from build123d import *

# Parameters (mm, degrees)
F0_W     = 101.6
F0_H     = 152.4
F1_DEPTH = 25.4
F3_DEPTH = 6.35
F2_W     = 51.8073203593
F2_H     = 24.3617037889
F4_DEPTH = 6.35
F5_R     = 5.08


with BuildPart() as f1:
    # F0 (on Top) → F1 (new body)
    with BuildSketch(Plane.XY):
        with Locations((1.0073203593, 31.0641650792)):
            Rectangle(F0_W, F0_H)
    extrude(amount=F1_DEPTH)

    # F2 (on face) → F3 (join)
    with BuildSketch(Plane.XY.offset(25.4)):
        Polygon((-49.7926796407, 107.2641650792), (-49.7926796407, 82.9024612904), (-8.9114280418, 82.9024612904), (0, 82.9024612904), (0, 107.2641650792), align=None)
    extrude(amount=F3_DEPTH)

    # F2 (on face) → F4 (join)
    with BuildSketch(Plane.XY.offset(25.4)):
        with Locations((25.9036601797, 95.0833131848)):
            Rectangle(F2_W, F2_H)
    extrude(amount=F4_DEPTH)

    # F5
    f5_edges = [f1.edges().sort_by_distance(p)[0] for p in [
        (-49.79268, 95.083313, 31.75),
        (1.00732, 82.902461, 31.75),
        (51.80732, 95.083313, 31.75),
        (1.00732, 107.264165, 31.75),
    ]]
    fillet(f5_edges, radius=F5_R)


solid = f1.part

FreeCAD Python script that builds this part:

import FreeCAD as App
import Part
import Sketcher

V = App.Vector
Q = App.Units.Quantity


def edges_at(feature, points):
    """Names of the edges that pass closest to the given points."""
    edges = feature.Shape.Edges
    near = lambda p: min(range(len(edges)), key=lambda i: edges[i].distToShape(Part.Vertex(*p))[0])
    return sorted({f"Edge{near(p) + 1}" for p in points})


def add_polygon(sketch, points):
    """Adds a closed chain of lines whose ends are joined by coincident constraints."""
    first, n = sketch.GeometryCount, len(points)
    for a, b in zip(points, points[1:] + points[:1]):
        sketch.addGeometry(Part.LineSegment(App.Vector(*a, 0), App.Vector(*b, 0)), False)
    for i in range(n):
        sketch.addConstraint(Sketcher.Constraint("Coincident", first + i, 2, first + (i + 1) % n, 1))

doc = App.newDocument("Part")
params = doc.addObject("Spreadsheet::Sheet", "Params")
for row, (alias, value) in enumerate([
    ("sketch1_width", "4 in"),
    ("sketch1_height", "6 in"),
    ("pad1_length", "1 in"),
    ("pad2_length", "0.25 in"),
    ("pad3_length", "0.25 in"),
    ("fillet_radius", "0.2 in"),
], start=1):
    params.set(f"A{row}", alias)
    params.set(f"B{row}", "=" + value)
    params.setAlias(f"B{row}", alias)

body = doc.addObject("PartDesign::Body", "Body")

# Sketch on XY plane
sketch1 = doc.addObject("Sketcher::SketchObject", "Sketch")
body.addObject(sketch1)
sketch1.AttachmentSupport = (doc.XY_Plane, [""])
sketch1.MapMode = "FlatFace"
add_polygon(sketch1, [(-50, 107), (-50, -45), (52, -45), (52, 107)])  # lines 0-3
sketch1.addConstraint(Sketcher.Constraint("Vertical", 0))
sketch1.addConstraint(Sketcher.Constraint("Horizontal", 1))
sketch1.addConstraint(Sketcher.Constraint("Vertical", 2))
sketch1.addConstraint(Sketcher.Constraint("Horizontal", 3))
sketch1.addConstraint(Sketcher.Constraint("DistanceX", 1, 1, 1, 2, Q("4 in")))
sketch1.addConstraint(Sketcher.Constraint("DistanceY", 0, 2, 0, 1, Q("6 in")))
sketch1.addConstraint(Sketcher.Constraint("DistanceX", 0, 2, -1, 1, Q("49.79268 mm")))
sketch1.addConstraint(Sketcher.Constraint("DistanceY", 0, 2, -1, 1, Q("45.135835 mm")))
sketch1.setExpression("Constraints[8]", "Params.sketch1_width")
sketch1.setExpression("Constraints[9]", "Params.sketch1_height")
pad1 = doc.addObject("PartDesign::Pad", "Pad")
body.addObject(pad1)
pad1.Profile = sketch1
pad1.setExpression("Length", "Params.pad1_length")

# Sketch on XY plane
sketch2 = doc.addObject("Sketcher::SketchObject", "Sketch001")
body.addObject(sketch2)
sketch2.AttachmentSupport = (doc.XY_Plane, [""])
sketch2.MapMode = "FlatFace"
sketch2.AttachmentOffset = App.Placement(V(0, 0, 1 * 25.4), App.Rotation())
add_polygon(sketch2, [(-50, 107), (-50, 83), (0, 83), (0, 107)])  # lines 0-3
sketch2.addConstraint(Sketcher.Constraint("Vertical", 0))
sketch2.addConstraint(Sketcher.Constraint("Horizontal", 1))
sketch2.addConstraint(Sketcher.Constraint("Vertical", 2))
sketch2.addConstraint(Sketcher.Constraint("Horizontal", 3))
sketch2.addConstraint(Sketcher.Constraint("PointOnObject", 1, 2, -2))
sketch2.addConstraint(Sketcher.Constraint("DistanceX", 1, 1, 1, 2, Q("49.79268 mm")))
sketch2.addConstraint(Sketcher.Constraint("DistanceY", 0, 2, 0, 1, Q("24.361704 mm")))
sketch2.addConstraint(Sketcher.Constraint("DistanceY", -1, 1, 0, 2, Q("82.902461 mm")))
pad2 = doc.addObject("PartDesign::Pad", "Pad001")
body.addObject(pad2)
pad2.Profile = sketch2
pad2.setExpression("Length", "Params.pad2_length")

# Sketch on XY plane
sketch3 = doc.addObject("Sketcher::SketchObject", "Sketch002")
body.addObject(sketch3)
sketch3.AttachmentSupport = (doc.XY_Plane, [""])
sketch3.MapMode = "FlatFace"
sketch3.AttachmentOffset = App.Placement(V(0, 0, 1 * 25.4), App.Rotation())
add_polygon(sketch3, [(0, 107), (0, 83), (52, 83), (52, 107)])  # lines 0-3
sketch3.addConstraint(Sketcher.Constraint("Vertical", 0))
sketch3.addConstraint(Sketcher.Constraint("Horizontal", 1))
sketch3.addConstraint(Sketcher.Constraint("Vertical", 2))
sketch3.addConstraint(Sketcher.Constraint("Horizontal", 3))
sketch3.addConstraint(Sketcher.Constraint("PointOnObject", 0, 2, -2))
sketch3.addConstraint(Sketcher.Constraint("DistanceX", 1, 1, 1, 2, Q("51.80732 mm")))
sketch3.addConstraint(Sketcher.Constraint("DistanceY", 0, 2, 0, 1, Q("24.361704 mm")))
sketch3.addConstraint(Sketcher.Constraint("DistanceY", -1, 1, 0, 2, Q("82.902461 mm")))
pad3 = doc.addObject("PartDesign::Pad", "Pad002")
body.addObject(pad3)
pad3.Profile = sketch3
pad3.setExpression("Length", "Params.pad3_length")
doc.recompute()

fillet = doc.addObject("PartDesign::Fillet", "Fillet")
body.addObject(fillet)
fillet.Base = (pad3, edges_at(pad3, [
    (-49.793, 95.083, 31.75),
    (1.007, 82.902, 31.75),
    (51.807, 95.083, 31.75),
    (1.007, 107.264, 31.75),
]))
fillet.setExpression("Radius", "Params.fillet_radius")

doc.recompute()
